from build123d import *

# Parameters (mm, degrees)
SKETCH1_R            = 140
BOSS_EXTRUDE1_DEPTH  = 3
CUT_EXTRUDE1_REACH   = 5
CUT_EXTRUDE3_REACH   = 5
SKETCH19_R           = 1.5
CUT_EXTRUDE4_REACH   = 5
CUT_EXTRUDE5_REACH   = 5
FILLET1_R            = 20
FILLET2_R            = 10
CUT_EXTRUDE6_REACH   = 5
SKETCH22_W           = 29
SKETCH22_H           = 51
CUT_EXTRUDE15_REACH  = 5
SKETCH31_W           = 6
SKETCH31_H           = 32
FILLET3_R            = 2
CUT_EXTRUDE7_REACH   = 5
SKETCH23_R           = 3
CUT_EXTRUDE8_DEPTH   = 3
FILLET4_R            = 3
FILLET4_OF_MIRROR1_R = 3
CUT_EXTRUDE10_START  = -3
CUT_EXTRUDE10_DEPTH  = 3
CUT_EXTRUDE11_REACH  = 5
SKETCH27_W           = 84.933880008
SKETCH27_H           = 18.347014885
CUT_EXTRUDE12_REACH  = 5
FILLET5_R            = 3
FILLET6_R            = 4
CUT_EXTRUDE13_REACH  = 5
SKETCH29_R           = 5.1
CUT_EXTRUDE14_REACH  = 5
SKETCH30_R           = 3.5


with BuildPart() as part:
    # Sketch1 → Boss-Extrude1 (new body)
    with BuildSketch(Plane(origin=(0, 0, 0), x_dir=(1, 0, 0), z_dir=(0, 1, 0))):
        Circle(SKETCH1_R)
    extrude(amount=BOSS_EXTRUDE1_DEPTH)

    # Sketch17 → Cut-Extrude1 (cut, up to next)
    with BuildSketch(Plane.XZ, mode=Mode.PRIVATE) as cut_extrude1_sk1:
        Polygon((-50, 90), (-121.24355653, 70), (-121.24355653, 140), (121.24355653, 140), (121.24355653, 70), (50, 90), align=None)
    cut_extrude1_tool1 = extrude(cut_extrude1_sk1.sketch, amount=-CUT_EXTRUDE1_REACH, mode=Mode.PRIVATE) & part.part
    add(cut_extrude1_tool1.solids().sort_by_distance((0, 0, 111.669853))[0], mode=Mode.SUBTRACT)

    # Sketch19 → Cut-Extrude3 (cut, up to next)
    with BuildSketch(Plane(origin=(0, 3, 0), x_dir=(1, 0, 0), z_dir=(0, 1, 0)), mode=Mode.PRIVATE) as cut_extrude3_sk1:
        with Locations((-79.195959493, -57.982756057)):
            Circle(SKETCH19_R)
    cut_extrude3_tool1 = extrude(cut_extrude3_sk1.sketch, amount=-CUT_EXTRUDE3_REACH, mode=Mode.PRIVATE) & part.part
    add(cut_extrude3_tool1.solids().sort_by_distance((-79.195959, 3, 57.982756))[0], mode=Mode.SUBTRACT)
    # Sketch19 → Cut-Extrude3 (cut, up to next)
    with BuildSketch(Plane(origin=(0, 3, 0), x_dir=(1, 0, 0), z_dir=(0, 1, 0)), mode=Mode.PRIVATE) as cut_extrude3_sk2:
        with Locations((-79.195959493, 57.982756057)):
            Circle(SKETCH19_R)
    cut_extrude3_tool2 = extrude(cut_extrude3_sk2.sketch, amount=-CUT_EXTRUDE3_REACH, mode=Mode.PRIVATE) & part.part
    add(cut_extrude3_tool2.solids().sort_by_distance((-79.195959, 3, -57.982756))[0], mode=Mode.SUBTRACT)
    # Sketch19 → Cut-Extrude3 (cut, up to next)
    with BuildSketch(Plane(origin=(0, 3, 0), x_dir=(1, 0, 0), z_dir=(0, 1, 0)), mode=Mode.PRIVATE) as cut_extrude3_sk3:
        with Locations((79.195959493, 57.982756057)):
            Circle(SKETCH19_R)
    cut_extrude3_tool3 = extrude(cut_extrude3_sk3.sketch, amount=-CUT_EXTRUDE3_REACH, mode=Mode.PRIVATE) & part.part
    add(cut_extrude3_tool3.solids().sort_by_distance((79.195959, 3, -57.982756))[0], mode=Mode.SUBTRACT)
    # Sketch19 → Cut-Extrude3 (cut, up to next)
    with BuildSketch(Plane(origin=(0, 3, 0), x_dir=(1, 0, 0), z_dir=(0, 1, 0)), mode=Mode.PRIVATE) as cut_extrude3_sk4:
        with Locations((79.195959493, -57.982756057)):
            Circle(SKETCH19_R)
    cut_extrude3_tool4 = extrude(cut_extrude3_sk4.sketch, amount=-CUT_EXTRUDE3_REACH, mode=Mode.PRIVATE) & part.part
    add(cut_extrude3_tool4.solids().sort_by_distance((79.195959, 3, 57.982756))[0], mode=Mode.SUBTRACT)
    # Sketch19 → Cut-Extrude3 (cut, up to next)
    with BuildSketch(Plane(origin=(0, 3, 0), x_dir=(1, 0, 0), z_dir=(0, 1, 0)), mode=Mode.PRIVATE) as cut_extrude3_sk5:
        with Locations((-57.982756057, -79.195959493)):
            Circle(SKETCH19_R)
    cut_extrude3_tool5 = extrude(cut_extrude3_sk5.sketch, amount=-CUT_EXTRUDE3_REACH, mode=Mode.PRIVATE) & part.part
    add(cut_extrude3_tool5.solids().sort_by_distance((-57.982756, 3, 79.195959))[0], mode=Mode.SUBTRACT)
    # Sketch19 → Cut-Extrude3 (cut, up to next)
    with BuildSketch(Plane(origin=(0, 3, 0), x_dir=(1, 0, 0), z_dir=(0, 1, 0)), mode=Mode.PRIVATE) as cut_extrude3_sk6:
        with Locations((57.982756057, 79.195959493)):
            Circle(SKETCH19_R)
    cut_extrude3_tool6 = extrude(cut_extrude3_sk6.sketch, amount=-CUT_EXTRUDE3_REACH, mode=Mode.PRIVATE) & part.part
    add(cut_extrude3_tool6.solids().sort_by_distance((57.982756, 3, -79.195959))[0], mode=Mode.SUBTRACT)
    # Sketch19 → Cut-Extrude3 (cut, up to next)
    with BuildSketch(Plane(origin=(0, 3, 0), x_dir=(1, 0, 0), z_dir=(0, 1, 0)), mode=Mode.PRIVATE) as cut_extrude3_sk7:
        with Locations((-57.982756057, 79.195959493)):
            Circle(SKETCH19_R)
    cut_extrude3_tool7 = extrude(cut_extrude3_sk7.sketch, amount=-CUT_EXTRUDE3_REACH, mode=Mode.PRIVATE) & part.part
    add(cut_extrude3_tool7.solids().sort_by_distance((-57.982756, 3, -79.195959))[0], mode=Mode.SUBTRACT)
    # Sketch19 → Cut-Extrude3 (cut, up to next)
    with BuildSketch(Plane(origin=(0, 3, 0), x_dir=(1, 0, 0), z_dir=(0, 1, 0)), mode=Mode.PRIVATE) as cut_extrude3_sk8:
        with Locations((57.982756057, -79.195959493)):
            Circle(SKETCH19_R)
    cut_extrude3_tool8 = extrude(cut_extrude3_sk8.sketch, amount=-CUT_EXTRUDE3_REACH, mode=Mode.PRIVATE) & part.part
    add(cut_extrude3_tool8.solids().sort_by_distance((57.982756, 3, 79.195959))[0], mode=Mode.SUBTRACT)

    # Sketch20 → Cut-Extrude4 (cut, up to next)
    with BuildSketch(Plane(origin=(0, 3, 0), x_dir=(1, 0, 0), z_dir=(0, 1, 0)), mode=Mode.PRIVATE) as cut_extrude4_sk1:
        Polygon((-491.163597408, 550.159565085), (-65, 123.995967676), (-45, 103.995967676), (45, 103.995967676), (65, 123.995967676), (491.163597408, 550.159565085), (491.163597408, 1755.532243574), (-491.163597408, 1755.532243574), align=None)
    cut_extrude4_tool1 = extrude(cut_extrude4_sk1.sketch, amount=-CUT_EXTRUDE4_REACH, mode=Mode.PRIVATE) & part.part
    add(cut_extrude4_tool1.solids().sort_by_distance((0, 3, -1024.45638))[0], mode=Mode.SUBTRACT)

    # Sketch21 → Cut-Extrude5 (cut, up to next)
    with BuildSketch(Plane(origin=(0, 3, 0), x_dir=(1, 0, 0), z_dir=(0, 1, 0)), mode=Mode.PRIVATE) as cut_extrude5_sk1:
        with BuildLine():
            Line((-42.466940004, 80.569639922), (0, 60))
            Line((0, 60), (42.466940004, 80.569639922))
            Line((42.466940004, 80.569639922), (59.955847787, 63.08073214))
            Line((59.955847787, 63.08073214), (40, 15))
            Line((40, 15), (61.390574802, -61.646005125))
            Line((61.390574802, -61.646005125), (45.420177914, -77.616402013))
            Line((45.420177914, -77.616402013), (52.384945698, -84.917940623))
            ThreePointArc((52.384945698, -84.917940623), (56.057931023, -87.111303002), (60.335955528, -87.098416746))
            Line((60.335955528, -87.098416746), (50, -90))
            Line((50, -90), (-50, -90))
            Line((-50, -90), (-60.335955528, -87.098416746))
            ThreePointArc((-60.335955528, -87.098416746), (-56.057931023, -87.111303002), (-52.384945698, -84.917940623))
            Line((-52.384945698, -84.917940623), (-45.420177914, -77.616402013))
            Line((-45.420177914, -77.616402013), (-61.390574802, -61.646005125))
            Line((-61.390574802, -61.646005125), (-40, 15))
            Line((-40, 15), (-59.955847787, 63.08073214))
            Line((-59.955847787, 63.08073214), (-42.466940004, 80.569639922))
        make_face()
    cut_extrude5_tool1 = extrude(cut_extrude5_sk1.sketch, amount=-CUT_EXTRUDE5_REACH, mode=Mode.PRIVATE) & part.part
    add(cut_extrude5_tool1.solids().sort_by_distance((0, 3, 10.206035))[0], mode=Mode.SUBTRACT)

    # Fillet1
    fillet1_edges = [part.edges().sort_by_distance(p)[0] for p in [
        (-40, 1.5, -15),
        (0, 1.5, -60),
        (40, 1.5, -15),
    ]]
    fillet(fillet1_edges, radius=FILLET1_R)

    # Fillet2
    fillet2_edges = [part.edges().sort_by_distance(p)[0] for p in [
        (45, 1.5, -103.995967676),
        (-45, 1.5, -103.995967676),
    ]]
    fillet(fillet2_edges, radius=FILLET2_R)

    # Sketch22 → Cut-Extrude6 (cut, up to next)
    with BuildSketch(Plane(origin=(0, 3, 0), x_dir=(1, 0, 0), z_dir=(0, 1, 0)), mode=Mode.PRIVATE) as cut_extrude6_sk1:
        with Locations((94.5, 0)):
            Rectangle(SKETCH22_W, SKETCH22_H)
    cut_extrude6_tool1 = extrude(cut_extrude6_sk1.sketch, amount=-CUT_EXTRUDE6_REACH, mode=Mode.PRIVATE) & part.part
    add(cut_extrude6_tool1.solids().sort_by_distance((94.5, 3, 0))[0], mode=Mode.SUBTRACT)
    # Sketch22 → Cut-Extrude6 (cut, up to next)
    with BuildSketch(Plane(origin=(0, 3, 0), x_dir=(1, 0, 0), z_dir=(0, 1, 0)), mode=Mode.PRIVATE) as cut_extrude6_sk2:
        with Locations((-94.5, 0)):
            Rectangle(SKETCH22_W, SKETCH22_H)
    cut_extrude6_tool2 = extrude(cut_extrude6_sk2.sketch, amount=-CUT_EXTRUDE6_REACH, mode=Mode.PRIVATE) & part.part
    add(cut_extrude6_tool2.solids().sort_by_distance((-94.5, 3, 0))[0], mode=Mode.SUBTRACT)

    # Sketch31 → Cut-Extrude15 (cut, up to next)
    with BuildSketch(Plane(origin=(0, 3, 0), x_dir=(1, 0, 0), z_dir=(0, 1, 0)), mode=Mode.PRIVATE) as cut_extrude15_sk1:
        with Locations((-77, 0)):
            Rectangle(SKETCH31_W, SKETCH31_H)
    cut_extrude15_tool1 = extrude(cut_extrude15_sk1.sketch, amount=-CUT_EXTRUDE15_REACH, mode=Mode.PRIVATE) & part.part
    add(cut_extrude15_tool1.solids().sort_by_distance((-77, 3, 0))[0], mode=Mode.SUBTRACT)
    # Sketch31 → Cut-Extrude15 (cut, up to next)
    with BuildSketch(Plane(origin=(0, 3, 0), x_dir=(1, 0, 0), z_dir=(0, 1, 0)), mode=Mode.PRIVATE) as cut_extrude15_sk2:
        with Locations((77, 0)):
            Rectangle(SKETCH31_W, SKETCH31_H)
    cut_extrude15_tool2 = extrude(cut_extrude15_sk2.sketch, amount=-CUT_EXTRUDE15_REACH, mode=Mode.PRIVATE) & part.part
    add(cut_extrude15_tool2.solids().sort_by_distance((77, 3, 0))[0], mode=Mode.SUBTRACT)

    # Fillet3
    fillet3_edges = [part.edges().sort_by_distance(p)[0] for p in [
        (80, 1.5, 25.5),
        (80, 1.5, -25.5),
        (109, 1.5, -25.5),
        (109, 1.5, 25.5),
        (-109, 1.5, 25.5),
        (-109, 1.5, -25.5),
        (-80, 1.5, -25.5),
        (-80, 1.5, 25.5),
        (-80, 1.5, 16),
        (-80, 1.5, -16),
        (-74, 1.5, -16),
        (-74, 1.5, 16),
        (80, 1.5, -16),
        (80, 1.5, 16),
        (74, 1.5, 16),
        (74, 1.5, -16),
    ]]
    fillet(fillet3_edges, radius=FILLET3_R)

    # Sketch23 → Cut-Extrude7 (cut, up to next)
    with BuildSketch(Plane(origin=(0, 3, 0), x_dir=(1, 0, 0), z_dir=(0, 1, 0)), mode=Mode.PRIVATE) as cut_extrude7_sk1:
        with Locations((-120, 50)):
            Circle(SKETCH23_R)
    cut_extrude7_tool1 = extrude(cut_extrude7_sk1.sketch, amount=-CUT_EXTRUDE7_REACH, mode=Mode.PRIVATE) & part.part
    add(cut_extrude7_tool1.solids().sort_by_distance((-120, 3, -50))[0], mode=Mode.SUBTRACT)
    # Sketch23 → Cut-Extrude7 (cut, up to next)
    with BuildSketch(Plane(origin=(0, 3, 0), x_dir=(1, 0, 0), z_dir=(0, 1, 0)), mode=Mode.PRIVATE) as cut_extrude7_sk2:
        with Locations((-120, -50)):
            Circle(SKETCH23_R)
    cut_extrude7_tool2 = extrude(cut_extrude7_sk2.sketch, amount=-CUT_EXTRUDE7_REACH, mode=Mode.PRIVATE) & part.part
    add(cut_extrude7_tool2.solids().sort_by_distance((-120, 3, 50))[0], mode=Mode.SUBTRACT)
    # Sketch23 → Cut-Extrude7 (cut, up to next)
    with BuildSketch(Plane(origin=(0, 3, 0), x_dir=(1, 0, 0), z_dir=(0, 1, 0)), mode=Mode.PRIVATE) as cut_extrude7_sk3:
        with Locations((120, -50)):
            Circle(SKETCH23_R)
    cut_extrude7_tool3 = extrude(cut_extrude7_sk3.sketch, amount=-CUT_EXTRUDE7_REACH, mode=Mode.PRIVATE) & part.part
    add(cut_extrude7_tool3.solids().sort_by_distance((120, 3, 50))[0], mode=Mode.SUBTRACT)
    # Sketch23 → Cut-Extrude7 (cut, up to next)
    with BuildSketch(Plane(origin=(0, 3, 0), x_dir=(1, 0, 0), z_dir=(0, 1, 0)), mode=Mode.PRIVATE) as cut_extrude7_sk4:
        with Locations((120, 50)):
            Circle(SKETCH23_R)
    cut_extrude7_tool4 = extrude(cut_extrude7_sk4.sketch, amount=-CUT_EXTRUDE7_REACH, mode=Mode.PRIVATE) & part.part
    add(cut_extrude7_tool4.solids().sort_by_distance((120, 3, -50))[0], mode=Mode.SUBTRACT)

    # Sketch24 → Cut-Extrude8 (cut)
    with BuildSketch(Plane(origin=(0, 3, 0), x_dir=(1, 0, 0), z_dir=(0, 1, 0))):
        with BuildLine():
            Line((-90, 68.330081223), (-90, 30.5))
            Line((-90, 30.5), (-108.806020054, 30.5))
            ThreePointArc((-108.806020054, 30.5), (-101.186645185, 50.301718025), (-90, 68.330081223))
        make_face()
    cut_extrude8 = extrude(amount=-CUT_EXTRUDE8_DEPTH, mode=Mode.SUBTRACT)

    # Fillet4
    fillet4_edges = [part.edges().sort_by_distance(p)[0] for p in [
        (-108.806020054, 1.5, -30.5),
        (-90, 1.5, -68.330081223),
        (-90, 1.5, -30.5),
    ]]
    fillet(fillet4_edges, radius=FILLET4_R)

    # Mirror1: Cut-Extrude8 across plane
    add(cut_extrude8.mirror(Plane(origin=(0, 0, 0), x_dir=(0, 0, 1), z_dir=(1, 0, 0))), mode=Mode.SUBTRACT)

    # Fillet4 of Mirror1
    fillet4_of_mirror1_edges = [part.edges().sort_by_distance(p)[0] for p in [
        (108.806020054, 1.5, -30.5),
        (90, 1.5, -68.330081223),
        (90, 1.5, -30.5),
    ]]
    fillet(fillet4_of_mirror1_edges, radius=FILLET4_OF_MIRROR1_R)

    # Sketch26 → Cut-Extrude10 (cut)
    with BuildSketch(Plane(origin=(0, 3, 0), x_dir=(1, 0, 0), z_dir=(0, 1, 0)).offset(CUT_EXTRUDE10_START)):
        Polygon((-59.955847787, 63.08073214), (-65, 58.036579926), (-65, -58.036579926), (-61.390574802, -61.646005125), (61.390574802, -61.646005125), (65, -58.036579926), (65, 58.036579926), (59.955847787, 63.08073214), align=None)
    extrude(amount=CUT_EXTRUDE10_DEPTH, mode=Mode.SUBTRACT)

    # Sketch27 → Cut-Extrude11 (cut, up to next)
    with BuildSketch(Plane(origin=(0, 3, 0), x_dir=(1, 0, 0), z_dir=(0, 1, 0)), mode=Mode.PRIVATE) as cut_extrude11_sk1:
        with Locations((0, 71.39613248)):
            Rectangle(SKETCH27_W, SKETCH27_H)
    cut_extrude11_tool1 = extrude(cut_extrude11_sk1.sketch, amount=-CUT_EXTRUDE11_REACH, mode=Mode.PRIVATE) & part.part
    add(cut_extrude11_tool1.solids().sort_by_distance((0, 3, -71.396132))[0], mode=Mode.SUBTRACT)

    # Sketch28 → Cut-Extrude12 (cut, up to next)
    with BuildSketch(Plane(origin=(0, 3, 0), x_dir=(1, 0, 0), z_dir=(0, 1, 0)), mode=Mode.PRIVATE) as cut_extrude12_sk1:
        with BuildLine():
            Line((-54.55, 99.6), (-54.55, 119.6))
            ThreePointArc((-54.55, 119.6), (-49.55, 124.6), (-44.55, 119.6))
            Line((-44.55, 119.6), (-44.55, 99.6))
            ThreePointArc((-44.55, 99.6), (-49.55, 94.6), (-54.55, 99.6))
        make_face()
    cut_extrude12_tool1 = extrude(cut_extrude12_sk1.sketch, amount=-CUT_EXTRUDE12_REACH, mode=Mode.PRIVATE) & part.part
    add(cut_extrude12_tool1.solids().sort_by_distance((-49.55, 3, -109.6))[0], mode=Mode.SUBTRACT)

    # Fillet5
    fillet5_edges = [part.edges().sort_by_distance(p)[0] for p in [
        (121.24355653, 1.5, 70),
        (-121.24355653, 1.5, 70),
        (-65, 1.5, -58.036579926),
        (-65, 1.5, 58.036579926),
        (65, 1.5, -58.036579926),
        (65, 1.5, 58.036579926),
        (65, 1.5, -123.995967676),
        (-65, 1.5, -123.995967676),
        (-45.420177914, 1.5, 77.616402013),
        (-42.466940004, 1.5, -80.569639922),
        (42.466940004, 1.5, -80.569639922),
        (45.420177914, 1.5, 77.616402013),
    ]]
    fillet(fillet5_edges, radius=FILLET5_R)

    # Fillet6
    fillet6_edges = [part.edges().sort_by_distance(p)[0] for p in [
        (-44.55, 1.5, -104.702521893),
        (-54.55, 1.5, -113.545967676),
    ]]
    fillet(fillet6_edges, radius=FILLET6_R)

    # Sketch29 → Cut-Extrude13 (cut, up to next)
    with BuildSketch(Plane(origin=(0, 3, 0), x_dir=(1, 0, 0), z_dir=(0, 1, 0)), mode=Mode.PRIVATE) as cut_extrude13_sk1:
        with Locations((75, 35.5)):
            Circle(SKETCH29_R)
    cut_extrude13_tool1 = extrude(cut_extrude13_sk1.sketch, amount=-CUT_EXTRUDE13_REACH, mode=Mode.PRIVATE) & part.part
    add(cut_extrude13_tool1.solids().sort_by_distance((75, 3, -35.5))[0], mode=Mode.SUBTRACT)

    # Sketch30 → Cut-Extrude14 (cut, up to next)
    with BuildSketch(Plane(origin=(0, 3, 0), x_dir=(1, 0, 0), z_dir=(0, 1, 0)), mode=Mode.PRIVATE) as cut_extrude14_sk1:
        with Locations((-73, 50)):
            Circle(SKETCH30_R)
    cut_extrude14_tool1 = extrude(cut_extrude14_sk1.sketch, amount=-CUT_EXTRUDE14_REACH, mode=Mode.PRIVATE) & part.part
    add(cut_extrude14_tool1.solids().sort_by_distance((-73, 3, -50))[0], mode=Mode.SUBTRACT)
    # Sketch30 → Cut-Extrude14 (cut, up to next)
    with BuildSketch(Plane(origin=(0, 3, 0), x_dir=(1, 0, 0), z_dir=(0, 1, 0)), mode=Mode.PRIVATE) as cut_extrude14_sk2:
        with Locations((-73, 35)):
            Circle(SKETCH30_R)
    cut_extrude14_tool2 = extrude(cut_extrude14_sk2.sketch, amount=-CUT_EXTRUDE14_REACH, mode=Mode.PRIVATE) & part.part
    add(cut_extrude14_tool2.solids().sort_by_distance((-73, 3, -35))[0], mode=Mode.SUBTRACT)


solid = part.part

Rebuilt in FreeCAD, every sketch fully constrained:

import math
import FreeCAD as App
import Part
import Sketcher

V = App.Vector
Q = App.Units.Quantity


def edges_at(feature, points):
    """Names of the edges that pass closest to the given points."""
    edges = feature.Shape.Edges
    near = lambda p: min(range(len(edges)), key=lambda i: edges[i].distToShape(Part.Vertex(*p))[0])
    return sorted({f"Edge{near(p) + 1}" for p in points})

doc = App.newDocument("Part")
body = doc.addObject("PartDesign::Body", "Body")

# Sketch on XZ plane
sketch1 = doc.addObject("Sketcher::SketchObject", "Sketch")
body.addObject(sketch1)
sketch1.AttachmentSupport = (doc.XZ_Plane, [""])
sketch1.MapMode = "FlatFace"
sketch1.addGeometry(Part.Circle(V(0, 0, 0), V(0, 0, 1), 140), False)
sketch1.addConstraint([
    Sketcher.Constraint("Coincident", 0, 3, -1, 1),
    Sketcher.Constraint("Diameter", 0, Q("280 mm")),
])
pad1 = doc.addObject("PartDesign::Pad", "Pad")
body.addObject(pad1)
pad1.Profile = sketch1
pad1.Length = 3
pad1.Reversed = True

# Sketch on XZ plane
sketch2 = doc.addObject("Sketcher::SketchObject", "Sketch001")
body.addObject(sketch2)
sketch2.AttachmentSupport = (doc.XZ_Plane, [""])
sketch2.MapMode = "FlatFace"
sketch2.addGeometry([
    Part.LineSegment(V(-121, 70, 0), V(-50, 90, 0)),  # 0
    Part.LineSegment(V(-50, 90, 0), V(50, 90, 0)),  # 1
    Part.LineSegment(V(50, 90, 0), V(121, 70, 0)),  # 2
    Part.LineSegment(V(121, 70, 0), V(121, 140, 0)),  # 3
    Part.LineSegment(V(121, 140, 0), V(-121, 140, 0)),  # 4
    Part.LineSegment(V(-121, 140, 0), V(-121, 70, 0)),  # 5
], False)
sketch2.addConstraint([
    Sketcher.Constraint("Coincident", 0, 2, 1, 1),
    Sketcher.Constraint("Coincident", 1, 2, 2, 1),
    Sketcher.Constraint("Coincident", 2, 2, 3, 1),
    Sketcher.Constraint("Coincident", 3, 2, 4, 1),
    Sketcher.Constraint("Coincident", 4, 2, 5, 1),
    Sketcher.Constraint("Coincident", 5, 2, 0, 1),
    Sketcher.Constraint("Horizontal", 1),
    Sketcher.Constraint("Vertical", 3),
    Sketcher.Constraint("Horizontal", 4),
    Sketcher.Constraint("Vertical", 5),
    Sketcher.Constraint("Symmetric", 2, 2, 5, 2, -2),
    Sketcher.Constraint("Equal", 0, 2),
    Sketcher.Constraint("DistanceX", 1, 1, 1, 2, Q("100 mm")),
    Sketcher.Constraint("DistanceY", 3, 1, 3, 2, Q("70 mm")),
    Sketcher.Constraint("DistanceY", -1, 1, 0, 2, Q("90 mm")),
    Sketcher.Constraint("DistanceY", -1, 1, 2, 2, Q("70 mm")),
    Sketcher.Constraint("DistanceX", 4, 2, 4, 1, Q("242.487113 mm")),
])
pocket1 = doc.addObject("PartDesign::Pocket", "Pocket")
body.addObject(pocket1)
pocket1.Profile = sketch2
pocket1.Type = "UpToFirst"

# Sketch on XZ plane
sketch3 = doc.addObject("Sketcher::SketchObject", "Sketch002")
body.addObject(sketch3)
sketch3.AttachmentSupport = (doc.XZ_Plane, [""])
sketch3.MapMode = "FlatFace"
sketch3.AttachmentOffset = App.Placement(V(0, 0, -3), App.Rotation())
sketch3.addGeometry(Part.Circle(V(-79.2, 58, 0), V(0, 0, 1), 1.5), False)
sketch3.addConstraint([
    Sketcher.Constraint("Diameter", 0, Q("3 mm")),
    Sketcher.Constraint("DistanceX", 0, 3, -1, 1, Q("79.195959 mm")),
    Sketcher.Constraint("DistanceY", -1, 1, 0, 3, Q("57.982756 mm")),
])
pocket2 = doc.addObject("PartDesign::Pocket", "Pocket001")
body.addObject(pocket2)
pocket2.Profile = sketch3
pocket2.Type = "UpToFirst"
pocket2.Reversed = True

# Sketch on XZ plane
sketch4 = doc.addObject("Sketcher::SketchObject", "Sketch003")
body.addObject(sketch4)
sketch4.AttachmentSupport = (doc.XZ_Plane, [""])
sketch4.MapMode = "FlatFace"
sketch4.AttachmentOffset = App.Placement(V(0, 0, -3), App.Rotation())
sketch4.addGeometry(Part.Circle(V(-79.2, -58, 0), V(0, 0, 1), 1.5), False)
sketch4.addConstraint([
    Sketcher.Constraint("Diameter", 0, Q("3 mm")),
    Sketcher.Constraint("DistanceX", 0, 3, -1, 1, Q("79.195959 mm")),
    Sketcher.Constraint("DistanceY", 0, 3, -1, 1, Q("57.982756 mm")),
])
pocket3 = doc.addObject("PartDesign::Pocket", "Pocket002")
body.addObject(pocket3)
pocket3.Profile = sketch4
pocket3.Type = "UpToFirst"
pocket3.Reversed = True

# Sketch on XZ plane
sketch5 = doc.addObject("Sketcher::SketchObject", "Sketch004")
body.addObject(sketch5)
sketch5.AttachmentSupport = (doc.XZ_Plane, [""])
sketch5.MapMode = "FlatFace"
sketch5.AttachmentOffset = App.Placement(V(0, 0, -3), App.Rotation())
sketch5.addGeometry(Part.Circle(V(79.2, -58, 0), V(0, 0, 1), 1.5), False)
sketch5.addConstraint([
    Sketcher.Constraint("Diameter", 0, Q("3 mm")),
    Sketcher.Constraint("DistanceX", -1, 1, 0, 3, Q("79.195959 mm")),
    Sketcher.Constraint("DistanceY", 0, 3, -1, 1, Q("57.982756 mm")),
])
pocket4 = doc.addObject("PartDesign::Pocket", "Pocket003")
body.addObject(pocket4)
pocket4.Profile = sketch5
pocket4.Type = "UpToFirst"
pocket4.Reversed = True

# Sketch on XZ plane
sketch6 = doc.addObject("Sketcher::SketchObject", "Sketch005")
body.addObject(sketch6)
sketch6.AttachmentSupport = (doc.XZ_Plane, [""])
sketch6.MapMode = "FlatFace"
sketch6.AttachmentOffset = App.Placement(V(0, 0, -3), App.Rotation())
sketch6.addGeometry(Part.Circle(V(79.2, 58, 0), V(0, 0, 1), 1.5), False)
sketch6.addConstraint([
    Sketcher.Constraint("Diameter", 0, Q("3 mm")),
    Sketcher.Constraint("DistanceX", -1, 1, 0, 3, Q("79.195959 mm")),
    Sketcher.Constraint("DistanceY", -1, 1, 0, 3, Q("57.982756 mm")),
])
pocket5 = doc.addObject("PartDesign::Pocket", "Pocket004")
body.addObject(pocket5)
pocket5.Profile = sketch6
pocket5.Type = "UpToFirst"
pocket5.Reversed = True

# Sketch on XZ plane
sketch7 = doc.addObject("Sketcher::SketchObject", "Sketch006")
body.addObject(sketch7)
sketch7.AttachmentSupport = (doc.XZ_Plane, [""])
sketch7.MapMode = "FlatFace"
sketch7.AttachmentOffset = App.Placement(V(0, 0, -3), App.Rotation())
sketch7.addGeometry(Part.Circle(V(-58, 79.2, 0), V(0, 0, 1), 1.5), False)
sketch7.addConstraint([
    Sketcher.Constraint("Diameter", 0, Q("3 mm")),
    Sketcher.Constraint("DistanceY", -1, 1, 0, 3, Q("79.195959 mm")),
    Sketcher.Constraint("DistanceX", 0, 3, -1, 1, Q("57.982756 mm")),
])
pocket6 = doc.addObject("PartDesign::Pocket", "Pocket005")
body.addObject(pocket6)
pocket6.Profile = sketch7
pocket6.Type = "UpToFirst"
pocket6.Reversed = True

# Sketch on XZ plane
sketch8 = doc.addObject("Sketcher::SketchObject", "Sketch007")
body.addObject(sketch8)
sketch8.AttachmentSupport = (doc.XZ_Plane, [""])
sketch8.MapMode = "FlatFace"
sketch8.AttachmentOffset = App.Placement(V(0, 0, -3), App.Rotation())
sketch8.addGeometry(Part.Circle(V(58, -79.2, 0), V(0, 0, 1), 1.5), False)
sketch8.addConstraint([
    Sketcher.Constraint("Diameter", 0, Q("3 mm")),
    Sketcher.Constraint("DistanceY", 0, 3, -1, 1, Q("79.195959 mm")),
    Sketcher.Constraint("DistanceX", -1, 1, 0, 3, Q("57.982756 mm")),
])
pocket7 = doc.addObject("PartDesign::Pocket", "Pocket006")
body.addObject(pocket7)
pocket7.Profile = sketch8
pocket7.Type = "UpToFirst"
pocket7.Reversed = True

# Sketch on XZ plane
sketch9 = doc.addObject("Sketcher::SketchObject", "Sketch008")
body.addObject(sketch9)
sketch9.AttachmentSupport = (doc.XZ_Plane, [""])
sketch9.MapMode = "FlatFace"
sketch9.AttachmentOffset = App.Placement(V(0, 0, -3), App.Rotation())
sketch9.addGeometry(Part.Circle(V(-58, -79.2, 0), V(0, 0, 1), 1.5), False)
sketch9.addConstraint([
    Sketcher.Constraint("Diameter", 0, Q("3 mm")),
    Sketcher.Constraint("DistanceY", 0, 3, -1, 1, Q("79.195959 mm")),
    Sketcher.Constraint("DistanceX", 0, 3, -1, 1, Q("57.982756 mm")),
])
pocket8 = doc.addObject("PartDesign::Pocket", "Pocket007")
body.addObject(pocket8)
pocket8.Profile = sketch9
pocket8.Type = "UpToFirst"
pocket8.Reversed = True

# Sketch on XZ plane
sketch10 = doc.addObject("Sketcher::SketchObject", "Sketch009")
body.addObject(sketch10)
sketch10.AttachmentSupport = (doc.XZ_Plane, [""])
sketch10.MapMode = "FlatFace"
sketch10.AttachmentOffset = App.Placement(V(0, 0, -3), App.Rotation())
sketch10.addGeometry(Part.Circle(V(58, 79.2, 0), V(0, 0, 1), 1.5), False)
sketch10.addConstraint([
    Sketcher.Constraint("Diameter", 0, Q("3 mm")),
    Sketcher.Constraint("DistanceY", -1, 1, 0, 3, Q("79.195959 mm")),
    Sketcher.Constraint("DistanceX", -1, 1, 0, 3, Q("57.982756 mm")),
])
pocket9 = doc.addObject("PartDesign::Pocket", "Pocket008")
body.addObject(pocket9)
pocket9.Profile = sketch10
pocket9.Type = "UpToFirst"
pocket9.Reversed = True

# Sketch on XZ plane
sketch11 = doc.addObject("Sketcher::SketchObject", "Sketch010")
body.addObject(sketch11)
sketch11.AttachmentSupport = (doc.XZ_Plane, [""])
sketch11.MapMode = "FlatFace"
sketch11.AttachmentOffset = App.Placement(V(0, 0, -3), App.Rotation())
sketch11.addGeometry([
    Part.LineSegment(V(-491, -550, 0), V(-65, -124, 0)),  # 0
    Part.LineSegment(V(-65, -124, 0), V(-45, -104, 0)),  # 1
    Part.LineSegment(V(-45, -104, 0), V(45, -104, 0)),  # 2
    Part.LineSegment(V(45, -104, 0), V(65, -124, 0)),  # 3
    Part.LineSegment(V(65, -124, 0), V(491, -550, 0)),  # 4
    Part.LineSegment(V(491, -550, 0), V(491, -1756, 0)),  # 5
    Part.LineSegment(V(491, -1756, 0), V(-491, -1756, 0)),  # 6
    Part.LineSegment(V(-491, -1756, 0), V(-491, -550, 0)),  # 7
], False)
sketch11.addConstraint([
    Sketcher.Constraint("Coincident", 0, 2, 1, 1),
    Sketcher.Constraint("Coincident", 1, 2, 2, 1),
    Sketcher.Constraint("Coincident", 2, 2, 3, 1),
    Sketcher.Constraint("Coincident", 3, 2, 4, 1),
    Sketcher.Constraint("Coincident", 4, 2, 5, 1),
    Sketcher.Constraint("Coincident", 5, 2, 6, 1),
    Sketcher.Constraint("Coincident", 6, 2, 7, 1),
    Sketcher.Constraint("Coincident", 7, 2, 0, 1),
    Sketcher.Constraint("Horizontal", 2),
    Sketcher.Constraint("Vertical", 5),
    Sketcher.Constraint("Horizontal", 6),
    Sketcher.Constraint("Vertical", 7),
    Sketcher.Constraint("Symmetric", 0, 2, 3, 2, -2),
    Sketcher.Constraint("Symmetric", 4, 2, 7, 2, -2),
    Sketcher.Constraint("Parallel", 0, 1),
    Sketcher.Constraint("Perpendicular", 1, 3),
    Sketcher.Constraint("Parallel", 3, 4),
    Sketcher.Constraint("DistanceX", 2, 1, 2, 2, Q("90 mm")),
    Sketcher.Constraint("DistanceX", 0, 2, -1, 1, Q("65 mm")),
    Sketcher.Constraint("DistanceY", 5, 2, 5, 1, Q("1205.372678 mm")),
    Sketcher.Constraint("Distance", 0, Q("602.686339 mm")),
    Sketcher.Constraint("DistanceY", 0, 2, -1, 1, Q("123.995968 mm")),
])
pocket10 = doc.addObject("PartDesign::Pocket", "Pocket009")
body.addObject(pocket10)
pocket10.Profile = sketch11
pocket10.Length = 3
pocket10.Reversed = True

# Sketch on XZ plane
sketch12 = doc.addObject("Sketcher::SketchObject", "Sketch011")
body.addObject(sketch12)
sketch12.AttachmentSupport = (doc.XZ_Plane, [""])
sketch12.MapMode = "FlatFace"
sketch12.AttachmentOffset = App.Placement(V(0, 0, -3), App.Rotation())
sketch12.addGeometry([
    Part.LineSegment(V(0, -60, 0), V(-42, -81, 0)),  # 0
    Part.LineSegment(V(-42, -81, 0), V(-60, -63, 0)),  # 1
    Part.LineSegment(V(-60, -63, 0), V(-40, -15, 0)),  # 2
    Part.LineSegment(V(-40, -15, 0), V(-61, 62, 0)),  # 3
    Part.LineSegment(V(-61, 62, 0), V(-45, 78, 0)),  # 4
    Part.LineSegment(V(-45, 78, 0), V(-52, 85, 0)),  # 5
    Part.ArcOfCircle(Part.Circle(V(-58, 79, 0), V(0, 0, 1), 8), math.radians(44), math.radians(106)),  # 6
    Part.LineSegment(V(-60, 87, 0), V(-50, 90, 0)),  # 7
    Part.LineSegment(V(-50, 90, 0), V(50, 90, 0)),  # 8
    Part.LineSegment(V(50, 90, 0), V(60, 87, 0)),  # 9
    Part.ArcOfCircle(Part.Circle(V(58, 79, 0), V(0, 0, 1), 8), math.radians(74), math.radians(136)),  # 10
    Part.LineSegment(V(52, 85, 0), V(45, 78, 0)),  # 11
    Part.LineSegment(V(45, 78, 0), V(61, 62, 0)),  # 12
    Part.LineSegment(V(61, 62, 0), V(40, -15, 0)),  # 13
    Part.LineSegment(V(40, -15, 0), V(60, -63, 0)),  # 14
    Part.LineSegment(V(60, -63, 0), V(42, -81, 0)),  # 15
    Part.LineSegment(V(42, -81, 0), V(0, -60, 0)),  # 16
], False)
sketch12.addConstraint([
    Sketcher.Constraint("Coincident", 0, 2, 1, 1),
    Sketcher.Constraint("Coincident", 1, 2, 2, 1),
    Sketcher.Constraint("Coincident", 2, 2, 3, 1),
    Sketcher.Constraint("Coincident", 3, 2, 4, 1),
    Sketcher.Constraint("Coincident", 4, 2, 5, 1),
    Sketcher.Constraint("Tangent", 5, 2, 6, 1),
    Sketcher.Constraint("Tangent", 6, 2, 7, 1),
    Sketcher.Constraint("Coincident", 7, 2, 8, 1),
    Sketcher.Constraint("Coincident", 8, 2, 9, 1),
    Sketcher.Constraint("Tangent", 9, 2, 10, 1),
    Sketcher.Constraint("Tangent", 10, 2, 11, 1),
    Sketcher.Constraint("Coincident", 11, 2, 12, 1),
    Sketcher.Constraint("Coincident", 12, 2, 13, 1),
    Sketcher.Constraint("Coincident", 13, 2, 14, 1),
    Sketcher.Constraint("Coincident", 14, 2, 15, 1),
    Sketcher.Constraint("Coincident", 15, 2, 16, 1),
    Sketcher.Constraint("Coincident", 16, 2, 0, 1),
    Sketcher.Constraint("Horizontal", 8),
    Sketcher.Constraint("Equal", 6, 10),
    Sketcher.Constraint("Symmetric", 6, 3, 10, 3, -2),
    Sketcher.Constraint("Symmetric", 4, 2, 11, 2, -2),
    Sketcher.Constraint("Symmetric", 3, 2, 12, 2, -2),
    Sketcher.Constraint("Symmetric", 2, 2, 13, 2, -2),
    Sketcher.Constraint("Symmetric", 1, 2, 14, 2, -2),
    Sketcher.Constraint("Symmetric", 0, 2, 15, 2, -2),
    Sketcher.Constraint("PointOnObject", 16, 2, -2),
    Sketcher.Constraint("Perpendicular", 1, 4),
    Sketcher.Constraint("Perpendicular", 4, 12),
    Sketcher.Constraint("Horizontal", 6, 2, 9, 2),
    Sketcher.Constraint("Radius", 6, Q("8 mm")),
    Sketcher.Constraint("DistanceX", 8, 1, 8, 2, Q("100 mm")),
    Sketcher.Constraint("DistanceX", 2, 2, -1, 1, Q("40 mm")),
    Sketcher.Constraint("DistanceY", 2, 2, -1, 1, Q("15 mm")),
    Sketcher.Constraint("DistanceY", -1, 1, 7, 2, Q("90 mm")),
    Sketcher.Constraint("DistanceY", 16, 2, -1, 1, Q("60 mm")),
    Sketcher.Constraint("DistanceY", 0, 2, 6, 3, Q("159.9658 mm")),
    Sketcher.Constraint("DistanceX", 4, 2, 10, 3, Q("103.593901 mm")),
    Sketcher.Constraint("DistanceX", 5, 2, 9, 2, Q("112.720901 mm")),
    Sketcher.Constraint("Distance", 1, Q("24.733051 mm")),
    Sketcher.Constraint("Distance", 2, Q("52.05759 mm")),
    Sketcher.Constraint("Distance", 4, Q("22.585552 mm")),
    Sketcher.Constraint("Distance", 7, Q("10.735509 mm")),
    Sketcher.Constraint("DistanceY", -1, 1, 6, 3, Q("79.396161 mm")),
])
pocket11 = doc.addObject("PartDesign::Pocket", "Pocket010")
body.addObject(pocket11)
pocket11.Profile = sketch12
pocket11.Type = "UpToFirst"
pocket11.Reversed = True
doc.recompute()

fillet = doc.addObject("PartDesign::Fillet", "Fillet")
body.addObject(fillet)
fillet.Base = (pocket11, edges_at(pocket11, [(-40, 1.5, -15), (0, 1.5, -60), (40, 1.5, -15)]))
fillet.Radius = 20
doc.recompute()

fillet2 = doc.addObject("PartDesign::Fillet", "Fillet001")
body.addObject(fillet2)
fillet2.Base = (fillet, edges_at(fillet, [(45, 1.5, -103.996), (-45, 1.5, -103.996)]))
fillet2.Radius = 10

# Sketch on XZ plane
sketch13 = doc.addObject("Sketcher::SketchObject", "Sketch012")
body.addObject(sketch13)
sketch13.AttachmentSupport = (doc.XZ_Plane, [""])
sketch13.MapMode = "FlatFace"
sketch13.AttachmentOffset = App.Placement(V(0, 0, -3), App.Rotation())
sketch13.addGeometry([
    Part.LineSegment(V(80, -26, 0), V(80, 26, 0)),
    Part.LineSegment(V(80, 26, 0), V(109, 26, 0)),
    Part.LineSegment(V(109, 26, 0), V(109, -26, 0)),
    Part.LineSegment(V(109, -26, 0), V(80, -26, 0)),
], False)
sketch13.addConstraint([
    Sketcher.Constraint("Coincident", 0, 2, 1, 1),
    Sketcher.Constraint("Coincident", 1, 2, 2, 1),
    Sketcher.Constraint("Coincident", 2, 2, 3, 1),
    Sketcher.Constraint("Coincident", 3, 2, 0, 1),
    Sketcher.Constraint("Vertical", 0),
    Sketcher.Constraint("Horizontal", 1),
    Sketcher.Constraint("Vertical", 2),
    Sketcher.Constraint("Horizontal", 3),
    Sketcher.Constraint("DistanceX", 1, 1, 1, 2, Q("29 mm")),
    Sketcher.Constraint("DistanceY", 0, 1, 0, 2, Q("51 mm")),
    Sketcher.Constraint("DistanceX", -1, 1, 0, 2, Q("80 mm")),
    Sketcher.Constraint("DistanceY", -1, 1, 0, 2, Q("25.5 mm")),
])
pocket12 = doc.addObject("PartDesign::Pocket", "Pocket011")
body.addObject(pocket12)
pocket12.Profile = sketch13
pocket12.Type = "UpToFirst"
pocket12.Reversed = True

# Sketch on XZ plane
sketch14 = doc.addObject("Sketcher::SketchObject", "Sketch013")
body.addObject(sketch14)
sketch14.AttachmentSupport = (doc.XZ_Plane, [""])
sketch14.MapMode = "FlatFace"
sketch14.AttachmentOffset = App.Placement(V(0, 0, -3), App.Rotation())
sketch14.addGeometry([
    Part.LineSegment(V(-109, -26, 0), V(-109, 26, 0)),
    Part.LineSegment(V(-109, 26, 0), V(-80, 26, 0)),
    Part.LineSegment(V(-80, 26, 0), V(-80, -26, 0)),
    Part.LineSegment(V(-80, -26, 0), V(-109, -26, 0)),
], False)
sketch14.addConstraint([
    Sketcher.Constraint("Coincident", 0, 2, 1, 1),
    Sketcher.Constraint("Coincident", 1, 2, 2, 1),
    Sketcher.Constraint("Coincident", 2, 2, 3, 1),
    Sketcher.Constraint("Coincident", 3, 2, 0, 1),
    Sketcher.Constraint("Vertical", 0),
    Sketcher.Constraint("Horizontal", 1),
    Sketcher.Constraint("Vertical", 2),
    Sketcher.Constraint("Horizontal", 3),
    Sketcher.Constraint("DistanceX", 1, 1, 1, 2, Q("29 mm")),
    Sketcher.Constraint("DistanceY", 0, 1, 0, 2, Q("51 mm")),
    Sketcher.Constraint("DistanceX", 0, 2, -1, 1, Q("109 mm")),
    Sketcher.Constraint("DistanceY", -1, 1, 0, 2, Q("25.5 mm")),
])
pocket13 = doc.addObject("PartDesign::Pocket", "Pocket012")
body.addObject(pocket13)
pocket13.Profile = sketch14
pocket13.Type = "UpToFirst"
pocket13.Reversed = True

# Sketch on XZ plane
sketch15 = doc.addObject("Sketcher::SketchObject", "Sketch014")
body.addObject(sketch15)
sketch15.AttachmentSupport = (doc.XZ_Plane, [""])
sketch15.MapMode = "FlatFace"
sketch15.AttachmentOffset = App.Placement(V(0, 0, -3), App.Rotation())
sketch15.addGeometry([
    Part.LineSegment(V(-80, -16, 0), V(-80, 16, 0)),
    Part.LineSegment(V(-80, 16, 0), V(-74, 16, 0)),
    Part.LineSegment(V(-74, 16, 0), V(-74, -16, 0)),
    Part.LineSegment(V(-74, -16, 0), V(-80, -16, 0)),
], False)
sketch15.addConstraint([
    Sketcher.Constraint("Coincident", 0, 2, 1, 1),
    Sketcher.Constraint("Coincident", 1, 2, 2, 1),
    Sketcher.Constraint("Coincident", 2, 2, 3, 1),
    Sketcher.Constraint("Coincident", 3, 2, 0, 1),
    Sketcher.Constraint("Vertical", 0),
    Sketcher.Constraint("Horizontal", 1),
    Sketcher.Constraint("Vertical", 2),
    Sketcher.Constraint("Horizontal", 3),
    Sketcher.Constraint("DistanceX", 1, 1, 1, 2, Q("6 mm")),
    Sketcher.Constraint("DistanceY", 0, 1, 0, 2, Q("32 mm")),
    Sketcher.Constraint("DistanceX", 0, 2, -1, 1, Q("80 mm")),
    Sketcher.Constraint("DistanceY", -1, 1, 0, 2, Q("16 mm")),
])
pocket14 = doc.addObject("PartDesign::Pocket", "Pocket013")
body.addObject(pocket14)
pocket14.Profile = sketch15
pocket14.Type = "UpToFirst"
pocket14.Reversed = True

# Sketch on XZ plane
sketch16 = doc.addObject("Sketcher::SketchObject", "Sketch015")
body.addObject(sketch16)
sketch16.AttachmentSupport = (doc.XZ_Plane, [""])
sketch16.MapMode = "FlatFace"
sketch16.AttachmentOffset = App.Placement(V(0, 0, -3), App.Rotation())
sketch16.addGeometry([
    Part.LineSegment(V(74, -16, 0), V(74, 16, 0)),
    Part.LineSegment(V(74, 16, 0), V(80, 16, 0)),
    Part.LineSegment(V(80, 16, 0), V(80, -16, 0)),
    Part.LineSegment(V(80, -16, 0), V(74, -16, 0)),
], False)
sketch16.addConstraint([
    Sketcher.Constraint("Coincident", 0, 2, 1, 1),
    Sketcher.Constraint("Coincident", 1, 2, 2, 1),
    Sketcher.Constraint("Coincident", 2, 2, 3, 1),
    Sketcher.Constraint("Coincident", 3, 2, 0, 1),
    Sketcher.Constraint("Vertical", 0),
    Sketcher.Constraint("Horizontal", 1),
    Sketcher.Constraint("Vertical", 2),
    Sketcher.Constraint("Horizontal", 3),
    Sketcher.Constraint("DistanceX", 1, 1, 1, 2, Q("6 mm")),
    Sketcher.Constraint("DistanceY", 0, 1, 0, 2, Q("32 mm")),
    Sketcher.Constraint("DistanceX", -1, 1, 0, 2, Q("74 mm")),
    Sketcher.Constraint("DistanceY", -1, 1, 0, 2, Q("16 mm")),
])
pocket15 = doc.addObject("PartDesign::Pocket", "Pocket014")
body.addObject(pocket15)
pocket15.Profile = sketch16
pocket15.Type = "UpToFirst"
pocket15.Reversed = True
doc.recompute()

fillet3 = doc.addObject("PartDesign::Fillet", "Fillet002")
body.addObject(fillet3)
fillet3.Base = (pocket15, edges_at(pocket15, [
    (80, 1.5, 25.5),
    (80, 1.5, -25.5),
    (109, 1.5, -25.5),
    (109, 1.5, 25.5),
    (-109, 1.5, 25.5),
    (-109, 1.5, -25.5),
    (-80, 1.5, -25.5),
    (-80, 1.5, 25.5),
    (-80, 1.5, 16),
    (-80, 1.5, -16),
    (-74, 1.5, -16),
    (-74, 1.5, 16),
    (80, 1.5, -16),
    (80, 1.5, 16),
    (74, 1.5, 16),
    (74, 1.5, -16),
]))
fillet3.Radius = 2

# Sketch on XZ plane
sketch17 = doc.addObject("Sketcher::SketchObject", "Sketch016")
body.addObject(sketch17)
sketch17.AttachmentSupport = (doc.XZ_Plane, [""])
sketch17.MapMode = "FlatFace"
sketch17.AttachmentOffset = App.Placement(V(0, 0, -3), App.Rotation())
sketch17.addGeometry(Part.Circle(V(-120, -50, 0), V(0, 0, 1), 3), False)
sketch17.addConstraint([
    Sketcher.Constraint("Diameter", 0, Q("6 mm")),
    Sketcher.Constraint("DistanceX", 0, 3, -1, 1, Q("120 mm")),
    Sketcher.Constraint("DistanceY", 0, 3, -1, 1, Q("50 mm")),
])
pocket16 = doc.addObject("PartDesign::Pocket", "Pocket015")
body.addObject(pocket16)
pocket16.Profile = sketch17
pocket16.Type = "UpToFirst"
pocket16.Reversed = True

# Sketch on XZ plane
sketch18 = doc.addObject("Sketcher::SketchObject", "Sketch017")
body.addObject(sketch18)
sketch18.AttachmentSupport = (doc.XZ_Plane, [""])
sketch18.MapMode = "FlatFace"
sketch18.AttachmentOffset = App.Placement(V(0, 0, -3), App.Rotation())
sketch18.addGeometry(Part.Circle(V(-120, 50, 0), V(0, 0, 1), 3), False)
sketch18.addConstraint([
    Sketcher.Constraint("Diameter", 0, Q("6 mm")),
    Sketcher.Constraint("DistanceX", 0, 3, -1, 1, Q("120 mm")),
    Sketcher.Constraint("DistanceY", -1, 1, 0, 3, Q("50 mm")),
])
pocket17 = doc.addObject("PartDesign::Pocket", "Pocket016")
body.addObject(pocket17)
pocket17.Profile = sketch18
pocket17.Type = "UpToFirst"
pocket17.Reversed = True

# Sketch on XZ plane
sketch19 = doc.addObject("Sketcher::SketchObject", "Sketch018")
body.addObject(sketch19)
sketch19.AttachmentSupport = (doc.XZ_Plane, [""])
sketch19.MapMode = "FlatFace"
sketch19.AttachmentOffset = App.Placement(V(0, 0, -3), App.Rotation())
sketch19.addGeometry(Part.Circle(V(120, 50, 0), V(0, 0, 1), 3), False)
sketch19.addConstraint([
    Sketcher.Constraint("Diameter", 0, Q("6 mm")),
    Sketcher.Constraint("DistanceX", -1, 1, 0, 3, Q("120 mm")),
    Sketcher.Constraint("DistanceY", -1, 1, 0, 3, Q("50 mm")),
])
pocket18 = doc.addObject("PartDesign::Pocket", "Pocket017")
body.addObject(pocket18)
pocket18.Profile = sketch19
pocket18.Type = "UpToFirst"
pocket18.Reversed = True

# Sketch on XZ plane
sketch20 = doc.addObject("Sketcher::SketchObject", "Sketch019")
body.addObject(sketch20)
sketch20.AttachmentSupport = (doc.XZ_Plane, [""])
sketch20.MapMode = "FlatFace"
sketch20.AttachmentOffset = App.Placement(V(0, 0, -3), App.Rotation())
sketch20.addGeometry(Part.Circle(V(120, -50, 0), V(0, 0, 1), 3), False)
sketch20.addConstraint([
    Sketcher.Constraint("Diameter", 0, Q("6 mm")),
    Sketcher.Constraint("DistanceX", -1, 1, 0, 3, Q("120 mm")),
    Sketcher.Constraint("DistanceY", 0, 3, -1, 1, Q("50 mm")),
])
pocket19 = doc.addObject("PartDesign::Pocket", "Pocket018")
body.addObject(pocket19)
pocket19.Profile = sketch20
pocket19.Type = "UpToFirst"
pocket19.Reversed = True

# Sketch on XZ plane
sketch21 = doc.addObject("Sketcher::SketchObject", "Sketch020")
body.addObject(sketch21)
sketch21.AttachmentSupport = (doc.XZ_Plane, [""])
sketch21.MapMode = "FlatFace"
sketch21.AttachmentOffset = App.Placement(V(0, 0, -3), App.Rotation())
sketch21.addGeometry([
    Part.LineSegment(V(-90, -30, 0), V(-90, -68, 0)),
    Part.ArcOfCircle(Part.Circle(V(0, 0, 0), V(0, 0, 1), 113), math.radians(-164), math.radians(-143)),
    Part.LineSegment(V(-109, -30, 0), V(-90, -30, 0)),
], False)
sketch21.addConstraint([
    Sketcher.Constraint("Coincident", 0, 2, 1, 2),
    Sketcher.Constraint("Coincident", 1, 1, 2, 1),
    Sketcher.Constraint("Coincident", 2, 2, 0, 1),
    Sketcher.Constraint("Vertical", 0),
    Sketcher.Constraint("Horizontal", 2),
    Sketcher.Constraint("Coincident", 1, 3, -1, 1),
    Sketcher.Constraint("Radius", 1, Q("113 mm")),
    Sketcher.Constraint("DistanceX", 0, 2, -1, 1, Q("90 mm")),
    Sketcher.Constraint("DistanceY", 1, 1, -1, 1, Q("30.5 mm")),
])
pocket20 = doc.addObject("PartDesign::Pocket", "Pocket019")
body.addObject(pocket20)
pocket20.Profile = sketch21
pocket20.Length = 3
pocket20.Reversed = True
doc.recompute()

fillet4 = doc.addObject("PartDesign::Fillet", "Fillet003")
body.addObject(fillet4)
fillet4.Base = (pocket20, edges_at(pocket20, [(-108.806, 1.5, -30.5), (-90, 1.5, -68.33), (-90, 1.5, -30.5)]))
fillet4.Radius = 3
doc.recompute()

mirrored = doc.addObject("PartDesign::Mirrored", "Mirrored")
body.addObject(mirrored)
mirrored.Originals = [pocket20]
mirrored.MirrorPlane = (doc.YZ_Plane, [""])
body.Tip = mirrored
doc.recompute()

fillet5 = doc.addObject("PartDesign::Fillet", "Fillet004")
body.addObject(fillet5)
fillet5.Base = (mirrored, edges_at(mirrored, [(108.806, 1.5, -30.5), (90, 1.5, -68.33), (90, 1.5, -30.5)]))
fillet5.Radius = 3

# Sketch on XZ plane
sketch22 = doc.addObject("Sketcher::SketchObject", "Sketch021")
body.addObject(sketch22)
sketch22.AttachmentSupport = (doc.XZ_Plane, [""])
sketch22.MapMode = "FlatFace"
sketch22.addGeometry([
    Part.LineSegment(V(-60, -63, 0), V(-65, -58, 0)),  # 0
    Part.LineSegment(V(-65, -58, 0), V(-65, 58, 0)),  # 1
    Part.LineSegment(V(-65, 58, 0), V(-61, 62, 0)),  # 2
    Part.LineSegment(V(-61, 62, 0), V(61, 62, 0)),  # 3
    Part.LineSegment(V(61, 62, 0), V(65, 58, 0)),  # 4
    Part.LineSegment(V(65, 58, 0), V(65, -58, 0)),  # 5
    Part.LineSegment(V(65, -58, 0), V(60, -63, 0)),  # 6
    Part.LineSegment(V(60, -63, 0), V(-60, -63, 0)),  # 7
], False)
sketch22.addConstraint([
    Sketcher.Constraint("Coincident", 0, 2, 1, 1),
    Sketcher.Constraint("Coincident", 1, 2, 2, 1),
    Sketcher.Constraint("Coincident", 2, 2, 3, 1),
    Sketcher.Constraint("Coincident", 3, 2, 4, 1),
    Sketcher.Constraint("Coincident", 4, 2, 5, 1),
    Sketcher.Constraint("Coincident", 5, 2, 6, 1),
    Sketcher.Constraint("Coincident", 6, 2, 7, 1),
    Sketcher.Constraint("Coincident", 7, 2, 0, 1),
    Sketcher.Constraint("Vertical", 1),
    Sketcher.Constraint("Horizontal", 3),
    Sketcher.Constraint("Vertical", 5),
    Sketcher.Constraint("Horizontal", 7),
    Sketcher.Constraint("Symmetric", 0, 2, 4, 2, -1, 1),
    Sketcher.Constraint("Perpendicular", 0, 2),
    Sketcher.Constraint("Perpendicular", 2, 4),
    Sketcher.Constraint("Perpendicular", 4, 6),
    Sketcher.Constraint("Horizontal", 1, 2, 4, 2),
    Sketcher.Constraint("Horizontal", 0, 2, 5, 2),
    Sketcher.Constraint("Equal", 2, 4),
    Sketcher.Constraint("DistanceX", 0, 2, -1, 1, Q("65 mm")),
    Sketcher.Constraint("Distance", 2, Q("5.104498 mm")),
    Sketcher.Constraint("DistanceY", 1, 1, 1, 2, Q("116.07316 mm")),
    Sketcher.Constraint("Distance", 0, Q("7.133508 mm")),
])
pocket21 = doc.addObject("PartDesign::Pocket", "Pocket020")
body.addObject(pocket21)
pocket21.Profile = sketch22
pocket21.Length = 3

# Sketch on XZ plane
sketch23 = doc.addObject("Sketcher::SketchObject", "Sketch022")
body.addObject(sketch23)
sketch23.AttachmentSupport = (doc.XZ_Plane, [""])
sketch23.MapMode = "FlatFace"
sketch23.AttachmentOffset = App.Placement(V(0, 0, -3), App.Rotation())
sketch23.addGeometry([
    Part.LineSegment(V(-42, -81, 0), V(-42, -62, 0)),
    Part.LineSegment(V(-42, -62, 0), V(42, -62, 0)),
    Part.LineSegment(V(42, -62, 0), V(42, -81, 0)),
    Part.LineSegment(V(42, -81, 0), V(-42, -81, 0)),
], False)
sketch23.addConstraint([
    Sketcher.Constraint("Coincident", 0, 2, 1, 1),
    Sketcher.Constraint("Coincident", 1, 2, 2, 1),
    Sketcher.Constraint("Coincident", 2, 2, 3, 1),
    Sketcher.Constraint("Coincident", 3, 2, 0, 1),
    Sketcher.Constraint("Vertical", 0),
    Sketcher.Constraint("Horizontal", 1),
    Sketcher.Constraint("Vertical", 2),
    Sketcher.Constraint("Horizontal", 3),
    Sketcher.Constraint("DistanceX", 1, 1, 1, 2, Q("84.93388 mm")),
    Sketcher.Constraint("DistanceY", 0, 1, 0, 2, Q("18.347015 mm")),
    Sketcher.Constraint("DistanceX", 0, 2, -1, 1, Q("42.46694 mm")),
    Sketcher.Constraint("DistanceY", 2, 2, -1, 1, Q("80.56964 mm")),
])
pocket22 = doc.addObject("PartDesign::Pocket", "Pocket021")
body.addObject(pocket22)
pocket22.Profile = sketch23
pocket22.Type = "UpToFirst"
pocket22.Reversed = True

# Sketch on XZ plane
sketch24 = doc.addObject("Sketcher::SketchObject", "Sketch023")
body.addObject(sketch24)
sketch24.AttachmentSupport = (doc.XZ_Plane, [""])
sketch24.MapMode = "FlatFace"
sketch24.AttachmentOffset = App.Placement(V(0, 0, -3), App.Rotation())
sketch24.addGeometry([
    Part.LineSegment(V(-55, -120, 0), V(-55, -100, 0)),
    Part.ArcOfCircle(Part.Circle(V(-50, -100, 0), V(0, 0, 1), 5), math.radians(0), math.radians(180)),
    Part.LineSegment(V(-45, -100, 0), V(-45, -120, 0)),
    Part.ArcOfCircle(Part.Circle(V(-50, -120, 0), V(0, 0, 1), 5), math.radians(180), math.radians(360)),
], False)
sketch24.addConstraint([
    Sketcher.Constraint("Tangent", 0, 2, 1, 2),
    Sketcher.Constraint("Tangent", 1, 1, 2, 1),
    Sketcher.Constraint("Tangent", 2, 2, 3, 2),
    Sketcher.Constraint("Tangent", 3, 1, 0, 1),
    Sketcher.Constraint("Vertical", 0),
    Sketcher.Constraint("Vertical", 2),
    Sketcher.Constraint("Radius", 1, Q("5 mm")),
    Sketcher.Constraint("DistanceY", 0, 1, 0, 2, Q("20 mm")),
    Sketcher.Constraint("DistanceY", 1, 3, -1, 1, Q("99.6 mm")),
    Sketcher.Constraint("DistanceX", 1, 3, -1, 1, Q("49.55 mm")),
])
pocket23 = doc.addObject("PartDesign::Pocket", "Pocket022")
body.addObject(pocket23)
pocket23.Profile = sketch24
pocket23.Length = 3
pocket23.Reversed = True
doc.recompute()

fillet6 = doc.addObject("PartDesign::Fillet", "Fillet005")
body.addObject(fillet6)
fillet6.Base = (pocket23, edges_at(pocket23, [
    (121.244, 1.5, 70),
    (-121.244, 1.5, 70),
    (-65, 1.5, -58.037),
    (-65, 1.5, 58.037),
    (65, 1.5, -58.037),
    (65, 1.5, 58.037),
    (65, 1.5, -123.996),
    (-65, 1.5, -123.996),
    (-45.42, 1.5, 77.616),
    (-42.467, 1.5, -80.57),
    (42.467, 1.5, -80.57),
    (45.42, 1.5, 77.616),
]))
fillet6.Radius = 3
doc.recompute()

fillet7 = doc.addObject("PartDesign::Fillet", "Fillet006")
body.addObject(fillet7)
fillet7.Base = (fillet6, edges_at(fillet6, [(-44.55, 1.5, -104.703), (-54.55, 1.5, -113.546)]))
fillet7.Radius = 4

# Sketch on XZ plane
sketch25 = doc.addObject("Sketcher::SketchObject", "Sketch024")
body.addObject(sketch25)
sketch25.AttachmentSupport = (doc.XZ_Plane, [""])
sketch25.MapMode = "FlatFace"
sketch25.AttachmentOffset = App.Placement(V(0, 0, -3), App.Rotation())
sketch25.addGeometry(Part.Circle(V(75, -36, 0), V(0, 0, 1), 5), False)
sketch25.addConstraint([
    Sketcher.Constraint("Diameter", 0, Q("10.2 mm")),
    Sketcher.Constraint("DistanceX", -1, 1, 0, 3, Q("75 mm")),
    Sketcher.Constraint("DistanceY", 0, 3, -1, 1, Q("35.5 mm")),
])
pocket24 = doc.addObject("PartDesign::Pocket", "Pocket023")
body.addObject(pocket24)
pocket24.Profile = sketch25
pocket24.Type = "UpToFirst"
pocket24.Reversed = True

# Sketch on XZ plane
sketch26 = doc.addObject("Sketcher::SketchObject", "Sketch025")
body.addObject(sketch26)
sketch26.AttachmentSupport = (doc.XZ_Plane, [""])
sketch26.MapMode = "FlatFace"
sketch26.AttachmentOffset = App.Placement(V(0, 0, -3), App.Rotation())
sketch26.addGeometry(Part.Circle(V(-73, -50, 0), V(0, 0, 1), 3.5), False)
sketch26.addConstraint([
    Sketcher.Constraint("Diameter", 0, Q("7 mm")),
    Sketcher.Constraint("DistanceX", 0, 3, -1, 1, Q("73 mm")),
    Sketcher.Constraint("DistanceY", 0, 3, -1, 1, Q("50 mm")),
])
pocket25 = doc.addObject("PartDesign::Pocket", "Pocket024")
body.addObject(pocket25)
pocket25.Profile = sketch26
pocket25.Type = "UpToFirst"
pocket25.Reversed = True

# Sketch on XZ plane
sketch27 = doc.addObject("Sketcher::SketchObject", "Sketch026")
body.addObject(sketch27)
sketch27.AttachmentSupport = (doc.XZ_Plane, [""])
sketch27.MapMode = "FlatFace"
sketch27.AttachmentOffset = App.Placement(V(0, 0, -3), App.Rotation())
sketch27.addGeometry(Part.Circle(V(-73, -35, 0), V(0, 0, 1), 3.5), False)
sketch27.addConstraint([
    Sketcher.Constraint("Diameter", 0, Q("7 mm")),
    Sketcher.Constraint("DistanceX", 0, 3, -1, 1, Q("73 mm")),
    Sketcher.Constraint("DistanceY", 0, 3, -1, 1, Q("35 mm")),
])
pocket26 = doc.addObject("PartDesign::Pocket", "Pocket025")
body.addObject(pocket26)
pocket26.Profile = sketch27
pocket26.Type = "UpToFirst"
pocket26.Reversed = True

doc.recompute()
